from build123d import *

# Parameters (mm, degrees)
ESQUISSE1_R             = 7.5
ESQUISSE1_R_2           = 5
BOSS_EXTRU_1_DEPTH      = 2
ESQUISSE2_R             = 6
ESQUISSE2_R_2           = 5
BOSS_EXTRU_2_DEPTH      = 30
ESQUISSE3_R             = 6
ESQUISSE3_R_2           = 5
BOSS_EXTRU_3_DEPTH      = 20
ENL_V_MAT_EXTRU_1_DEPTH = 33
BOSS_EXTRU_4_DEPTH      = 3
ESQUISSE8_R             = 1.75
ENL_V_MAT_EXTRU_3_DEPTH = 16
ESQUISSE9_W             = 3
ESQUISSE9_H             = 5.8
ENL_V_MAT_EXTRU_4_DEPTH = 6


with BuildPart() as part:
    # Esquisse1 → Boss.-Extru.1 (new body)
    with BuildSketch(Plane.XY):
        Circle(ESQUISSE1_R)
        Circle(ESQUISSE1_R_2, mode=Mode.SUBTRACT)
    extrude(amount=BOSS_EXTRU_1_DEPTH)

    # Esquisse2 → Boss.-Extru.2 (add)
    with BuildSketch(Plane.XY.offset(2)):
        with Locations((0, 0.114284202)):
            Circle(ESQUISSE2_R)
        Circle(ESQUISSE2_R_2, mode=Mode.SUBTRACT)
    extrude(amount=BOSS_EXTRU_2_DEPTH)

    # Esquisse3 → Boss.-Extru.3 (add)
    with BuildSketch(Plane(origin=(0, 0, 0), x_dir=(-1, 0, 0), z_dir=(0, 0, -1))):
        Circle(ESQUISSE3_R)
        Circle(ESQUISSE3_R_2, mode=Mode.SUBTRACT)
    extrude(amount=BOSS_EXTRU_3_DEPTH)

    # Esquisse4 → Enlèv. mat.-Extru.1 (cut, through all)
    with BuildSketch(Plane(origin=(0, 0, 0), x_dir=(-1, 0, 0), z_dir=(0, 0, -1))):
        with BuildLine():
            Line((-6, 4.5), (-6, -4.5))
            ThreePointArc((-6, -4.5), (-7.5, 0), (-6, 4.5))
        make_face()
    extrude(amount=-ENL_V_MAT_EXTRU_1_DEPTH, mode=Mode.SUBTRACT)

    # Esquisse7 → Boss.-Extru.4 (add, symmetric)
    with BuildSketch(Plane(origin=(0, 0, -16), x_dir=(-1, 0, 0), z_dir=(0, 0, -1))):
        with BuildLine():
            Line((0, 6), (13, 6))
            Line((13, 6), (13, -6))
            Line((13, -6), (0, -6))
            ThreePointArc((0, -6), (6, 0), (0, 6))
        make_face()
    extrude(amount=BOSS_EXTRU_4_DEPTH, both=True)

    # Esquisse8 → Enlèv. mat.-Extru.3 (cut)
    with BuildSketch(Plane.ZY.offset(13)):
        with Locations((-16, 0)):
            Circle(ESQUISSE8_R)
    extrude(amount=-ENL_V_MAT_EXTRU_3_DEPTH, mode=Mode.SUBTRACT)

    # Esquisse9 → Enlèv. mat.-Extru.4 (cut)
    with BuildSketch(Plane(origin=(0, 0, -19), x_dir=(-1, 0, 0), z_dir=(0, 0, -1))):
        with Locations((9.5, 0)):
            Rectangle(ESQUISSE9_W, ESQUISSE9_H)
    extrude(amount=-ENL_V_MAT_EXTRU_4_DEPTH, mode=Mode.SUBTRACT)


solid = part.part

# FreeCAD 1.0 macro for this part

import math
import FreeCAD as App
import Part
import Sketcher
from FreeCAD import Vector
Q = App.Units.Quantity

doc = App.newDocument("Part")
params = doc.addObject("Spreadsheet::Sheet", "Params")
for row, (alias, value) in enumerate([
    ("sketch1_diameter", "15 mm"),
    ("sketch1_diameter2", "10 mm"),
    ("pad1_length", "2 mm"),
    ("sketch2_diameter", "12 mm"),
    ("sketch2_diameter2", "10 mm"),
    ("pad2_length", "30 mm"),
    ("sketch3_diameter", "12 mm"),
    ("sketch3_diameter2", "10 mm"),
    ("pad3_length", "20 mm"),
    ("sketch4_radius", "7.5 mm"),
    ("sketch4_height", "9 mm"),
    ("sketch5_radius", "6 mm"),
    ("sketch5_width", "13 mm"),
    ("pad4_length", "6 mm"),
    ("sketch6_diameter", "3.5 mm"),
    ("pocket2_length", "16 mm"),
    ("sketch7_width", "3 mm"),
    ("sketch7_height", "5.8 mm"),
    ("pocket3_length", "6 mm"),
], start=1):
    params.set(f"A{row}", alias)
    params.set(f"B{row}", "=" + value)
    params.setAlias(f"B{row}", alias)

body = doc.addObject("PartDesign::Body", "Body")

sketch1 = body.newObject("Sketcher::SketchObject", "Sketch")
sketch1.AttachmentSupport = (doc.getObject("XY_Plane"), [""])
sketch1.MapMode = "FlatFace"
sketch1.addGeometry([
    Part.Circle(Vector(0, 0, 0), Vector(0, 0, 1), 8),
    Part.Circle(Vector(0, 0, 0), Vector(0, 0, 1), 5),
], False)
sketch1.addConstraint([
    Sketcher.Constraint("Coincident", 0, 3, -1, 1),
    Sketcher.Constraint("Coincident", 1, 3, -1, 1),
    Sketcher.Constraint("Diameter", 0, Q("15 mm")),
    Sketcher.Constraint("Diameter", 1, Q("10 mm")),
])
sketch1.setExpression("Constraints[2]", "Params.sketch1_diameter")
sketch1.setExpression("Constraints[3]", "Params.sketch1_diameter2")
pad1 = body.newObject("PartDesign::Pad", "Pad")
pad1.Profile = sketch1
pad1.setExpression("Length", "Params.pad1_length")

sketch2 = body.newObject("Sketcher::SketchObject", "Sketch001")
sketch2.AttachmentSupport = (doc.getObject("XY_Plane"), [""])
sketch2.MapMode = "FlatFace"
sketch2.AttachmentOffset = App.Placement(Vector(0, 0, 2), App.Rotation())
sketch2.addGeometry([
    Part.Circle(Vector(0, 0, 0), Vector(0, 0, 1), 6),
    Part.Circle(Vector(0, 0, 0), Vector(0, 0, 1), 5),
], False)
sketch2.addConstraint([
    Sketcher.Constraint("Coincident", 1, 3, -1, 1),
    Sketcher.Constraint("PointOnObject", 0, 3, -2),
    Sketcher.Constraint("Diameter", 0, Q("12 mm")),
    Sketcher.Constraint("Diameter", 1, Q("10 mm")),
    Sketcher.Constraint("DistanceY", -1, 1, 0, 3, Q("0.114284 mm")),
])
sketch2.setExpression("Constraints[2]", "Params.sketch2_diameter")
sketch2.setExpression("Constraints[3]", "Params.sketch2_diameter2")
pad2 = body.newObject("PartDesign::Pad", "Pad001")
pad2.Profile = sketch2
pad2.setExpression("Length", "Params.pad2_length")

sketch3 = body.newObject("Sketcher::SketchObject", "Sketch002")
sketch3.AttachmentSupport = (doc.getObject("XY_Plane"), [""])
sketch3.MapMode = "FlatFace"
sketch3.addGeometry([
    Part.Circle(Vector(0, 0, 0), Vector(0, 0, 1), 6),
    Part.Circle(Vector(0, 0, 0), Vector(0, 0, 1), 5),
], False)
sketch3.addConstraint([
    Sketcher.Constraint("Coincident", 0, 3, -1, 1),
    Sketcher.Constraint("Coincident", 1, 3, -1, 1),
    Sketcher.Constraint("Diameter", 0, Q("12 mm")),
    Sketcher.Constraint("Diameter", 1, Q("10 mm")),
])
sketch3.setExpression("Constraints[2]", "Params.sketch3_diameter")
sketch3.setExpression("Constraints[3]", "Params.sketch3_diameter2")
pad3 = body.newObject("PartDesign::Pad", "Pad002")
pad3.Profile = sketch3
pad3.setExpression("Length", "Params.pad3_length")
pad3.Reversed = True

sketch4 = body.newObject("Sketcher::SketchObject", "Sketch003")
sketch4.AttachmentSupport = (doc.getObject("XY_Plane"), [""])
sketch4.MapMode = "FlatFace"
sketch4.addGeometry([
    Part.LineSegment(Vector(6, -4, 0), Vector(6, 4, 0)),
    Part.ArcOfCircle(Part.Circle(Vector(0, 0, 0), Vector(0, 0, 1), 8), math.radians(-37), math.radians(37)),
], False)
sketch4.addConstraint([
    Sketcher.Constraint("Coincident", 0, 1, 1, 1),
    Sketcher.Constraint("Coincident", 1, 2, 0, 2),
    Sketcher.Constraint("Vertical", 0),
    Sketcher.Constraint("Coincident", 1, 3, -1, 1),
    Sketcher.Constraint("Radius", 1, Q("7.5 mm")),
    Sketcher.Constraint("DistanceY", 0, 1, 0, 2, Q("9 mm")),
])
sketch4.setExpression("Constraints[4]", "Params.sketch4_radius")
sketch4.setExpression("Constraints[5]", "Params.sketch4_height")
pocket1 = body.newObject("PartDesign::Pocket", "Pocket")
pocket1.Profile = sketch4
pocket1.Type = "ThroughAll"
pocket1.Reversed = True

sketch5 = body.newObject("Sketcher::SketchObject", "Sketch004")
sketch5.AttachmentSupport = (doc.getObject("XY_Plane"), [""])
sketch5.MapMode = "FlatFace"
sketch5.AttachmentOffset = App.Placement(Vector(0, 0, -16), App.Rotation())
sketch5.addGeometry([
    Part.LineSegment(Vector(-13, 6, 0), Vector(0, 6, 0)),
    Part.ArcOfCircle(Part.Circle(Vector(0, 0, 0), Vector(0, 0, 1), 6), math.radians(90), math.radians(270)),
    Part.LineSegment(Vector(0, -6, 0), Vector(-13, -6, 0)),
    Part.LineSegment(Vector(-13, -6, 0), Vector(-13, 6, 0)),
], False)
sketch5.addConstraint([
    Sketcher.Constraint("Tangent", 0, 2, 1, 1),
    Sketcher.Constraint("Tangent", 1, 2, 2, 1),
    Sketcher.Constraint("Coincident", 2, 2, 3, 1),
    Sketcher.Constraint("Coincident", 3, 2, 0, 1),
    Sketcher.Constraint("Horizontal", 0),
    Sketcher.Constraint("Horizontal", 2),
    Sketcher.Constraint("Vertical", 3),
    Sketcher.Constraint("Coincident", 1, 3, -1, 1),
    Sketcher.Constraint("Radius", 1, Q("6 mm")),
    Sketcher.Constraint("DistanceX", 0, 1, 0, 2, Q("13 mm")),
])
sketch5.setExpression("Constraints[8]", "Params.sketch5_radius")
sketch5.setExpression("Constraints[9]", "Params.sketch5_width")
pad4 = body.newObject("PartDesign::Pad", "Pad003")
pad4.Profile = sketch5
pad4.setExpression("Length", "Params.pad4_length")
pad4.Midplane = True

sketch6 = body.newObject("Sketcher::SketchObject", "Sketch005")
sketch6.AttachmentSupport = (doc.getObject("YZ_Plane"), [""])
sketch6.MapMode = "FlatFace"
sketch6.AttachmentOffset = App.Placement(Vector(0, 0, -13), App.Rotation())
sketch6.addGeometry(Part.Circle(Vector(0, -16, 0), Vector(0, 0, 1), 1.8), False)
sketch6.addConstraint([
    Sketcher.Constraint("PointOnObject", 0, 3, -2),
    Sketcher.Constraint("Diameter", 0, Q("3.5 mm")),
    Sketcher.Constraint("DistanceY", 0, 3, -1, 1, Q("16 mm")),
])
sketch6.setExpression("Constraints[1]", "Params.sketch6_diameter")
pocket2 = body.newObject("PartDesign::Pocket", "Pocket001")
pocket2.Profile = sketch6
pocket2.setExpression("Length", "Params.pocket2_length")
pocket2.Reversed = True

sketch7 = body.newObject("Sketcher::SketchObject", "Sketch006")
sketch7.AttachmentSupport = (doc.getObject("XY_Plane"), [""])
sketch7.MapMode = "FlatFace"
sketch7.AttachmentOffset = App.Placement(Vector(0, 0, -19), App.Rotation())
sketch7.addGeometry([
    Part.LineSegment(Vector(-8, 2.9, 0), Vector(-8, -2.9, 0)),
    Part.LineSegment(Vector(-8, -2.9, 0), Vector(-11, -2.9, 0)),
    Part.LineSegment(Vector(-11, -2.9, 0), Vector(-11, 2.9, 0)),
    Part.LineSegment(Vector(-11, 2.9, 0), Vector(-8, 2.9, 0)),
], False)
sketch7.addConstraint([
    Sketcher.Constraint("Coincident", 0, 2, 1, 1),
    Sketcher.Constraint("Coincident", 1, 2, 2, 1),
    Sketcher.Constraint("Coincident", 2, 2, 3, 1),
    Sketcher.Constraint("Coincident", 3, 2, 0, 1),
    Sketcher.Constraint("Vertical", 0),
    Sketcher.Constraint("Horizontal", 1),
    Sketcher.Constraint("Vertical", 2),
    Sketcher.Constraint("Horizontal", 3),
    Sketcher.Constraint("DistanceX", 1, 2, 1, 1, Q("3 mm")),
    Sketcher.Constraint("DistanceY", 0, 2, 0, 1, Q("5.8 mm")),
    Sketcher.Constraint("DistanceX", 0, 2, -1, 1, Q("8 mm")),
    Sketcher.Constraint("DistanceY", 0, 2, -1, 1, Q("2.9 mm")),
])
sketch7.setExpression("Constraints[8]", "Params.sketch7_width")
sketch7.setExpression("Constraints[9]", "Params.sketch7_height")
pocket3 = body.newObject("PartDesign::Pocket", "Pocket002")
pocket3.Profile = sketch7
pocket3.setExpression("Length", "Params.pocket3_length")
pocket3.Reversed = True

doc.recompute()
